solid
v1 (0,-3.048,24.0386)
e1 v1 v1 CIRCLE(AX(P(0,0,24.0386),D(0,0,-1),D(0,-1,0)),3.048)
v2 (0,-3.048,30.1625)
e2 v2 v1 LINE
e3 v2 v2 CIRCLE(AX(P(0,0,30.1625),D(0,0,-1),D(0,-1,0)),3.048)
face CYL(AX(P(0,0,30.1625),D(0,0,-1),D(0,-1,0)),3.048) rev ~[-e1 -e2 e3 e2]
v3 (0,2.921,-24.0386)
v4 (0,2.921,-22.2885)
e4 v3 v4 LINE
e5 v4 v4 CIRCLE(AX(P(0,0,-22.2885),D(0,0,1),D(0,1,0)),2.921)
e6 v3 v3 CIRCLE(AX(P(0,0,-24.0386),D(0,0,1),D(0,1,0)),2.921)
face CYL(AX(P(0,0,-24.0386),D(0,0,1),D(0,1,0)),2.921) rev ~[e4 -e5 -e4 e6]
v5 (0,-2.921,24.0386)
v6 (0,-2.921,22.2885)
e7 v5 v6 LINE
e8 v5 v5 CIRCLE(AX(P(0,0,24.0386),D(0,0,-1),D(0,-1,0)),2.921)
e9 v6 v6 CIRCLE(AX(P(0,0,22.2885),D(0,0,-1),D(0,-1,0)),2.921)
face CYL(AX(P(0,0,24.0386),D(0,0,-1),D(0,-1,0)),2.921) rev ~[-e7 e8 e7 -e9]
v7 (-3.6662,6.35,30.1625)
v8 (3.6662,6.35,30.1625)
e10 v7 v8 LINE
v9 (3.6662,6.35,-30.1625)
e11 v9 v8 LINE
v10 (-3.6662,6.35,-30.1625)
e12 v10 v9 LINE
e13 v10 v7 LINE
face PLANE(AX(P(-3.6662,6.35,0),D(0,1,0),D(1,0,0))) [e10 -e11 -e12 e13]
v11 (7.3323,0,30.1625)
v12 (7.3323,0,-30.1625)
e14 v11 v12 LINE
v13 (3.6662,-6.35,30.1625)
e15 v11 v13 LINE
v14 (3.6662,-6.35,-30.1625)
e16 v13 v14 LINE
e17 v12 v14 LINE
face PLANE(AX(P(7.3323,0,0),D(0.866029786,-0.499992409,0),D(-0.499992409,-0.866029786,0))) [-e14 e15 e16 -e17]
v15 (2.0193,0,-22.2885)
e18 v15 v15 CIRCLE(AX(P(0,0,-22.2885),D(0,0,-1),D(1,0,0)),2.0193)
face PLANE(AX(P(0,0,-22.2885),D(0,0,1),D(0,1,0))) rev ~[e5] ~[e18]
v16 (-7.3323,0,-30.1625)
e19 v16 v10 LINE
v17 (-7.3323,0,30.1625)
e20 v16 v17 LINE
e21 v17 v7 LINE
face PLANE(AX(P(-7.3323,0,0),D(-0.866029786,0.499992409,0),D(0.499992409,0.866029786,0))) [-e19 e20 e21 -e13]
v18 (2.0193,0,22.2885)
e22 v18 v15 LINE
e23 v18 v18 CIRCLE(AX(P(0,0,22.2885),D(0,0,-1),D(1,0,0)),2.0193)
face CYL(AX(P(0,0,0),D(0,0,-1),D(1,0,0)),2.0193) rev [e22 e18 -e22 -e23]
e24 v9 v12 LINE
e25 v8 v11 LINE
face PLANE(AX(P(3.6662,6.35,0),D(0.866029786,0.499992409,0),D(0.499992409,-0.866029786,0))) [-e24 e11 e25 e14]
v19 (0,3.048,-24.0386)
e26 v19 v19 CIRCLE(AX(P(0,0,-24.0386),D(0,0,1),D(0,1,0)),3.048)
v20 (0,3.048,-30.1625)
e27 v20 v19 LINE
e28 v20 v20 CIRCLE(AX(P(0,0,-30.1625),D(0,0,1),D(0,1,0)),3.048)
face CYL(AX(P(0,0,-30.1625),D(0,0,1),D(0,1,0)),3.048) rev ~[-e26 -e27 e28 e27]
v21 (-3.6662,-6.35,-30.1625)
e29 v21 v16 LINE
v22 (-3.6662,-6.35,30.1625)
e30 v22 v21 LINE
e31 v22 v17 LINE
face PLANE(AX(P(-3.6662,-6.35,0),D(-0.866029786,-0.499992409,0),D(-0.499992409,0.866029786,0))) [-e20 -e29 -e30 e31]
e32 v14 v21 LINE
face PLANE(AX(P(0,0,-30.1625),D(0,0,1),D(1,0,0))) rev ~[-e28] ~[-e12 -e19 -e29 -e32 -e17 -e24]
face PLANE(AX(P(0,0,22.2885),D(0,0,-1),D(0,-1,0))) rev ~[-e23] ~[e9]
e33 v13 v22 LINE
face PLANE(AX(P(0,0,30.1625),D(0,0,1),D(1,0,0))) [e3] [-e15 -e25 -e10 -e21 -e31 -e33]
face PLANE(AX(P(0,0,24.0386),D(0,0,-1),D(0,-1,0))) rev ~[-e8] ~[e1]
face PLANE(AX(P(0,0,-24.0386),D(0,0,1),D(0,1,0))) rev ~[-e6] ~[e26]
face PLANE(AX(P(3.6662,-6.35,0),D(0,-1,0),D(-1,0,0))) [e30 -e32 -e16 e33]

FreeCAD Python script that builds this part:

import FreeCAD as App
import Part
import Sketcher
from FreeCAD import Vector
Q = App.Units.Quantity


def add_polygon(sketch, points):
    """Adds a closed chain of lines whose ends are joined by coincident constraints."""
    first, n = sketch.GeometryCount, len(points)
    for a, b in zip(points, points[1:] + points[:1]):
        sketch.addGeometry(Part.LineSegment(App.Vector(*a, 0), App.Vector(*b, 0)), False)
    for i in range(n):
        sketch.addConstraint(Sketcher.Constraint("Coincident", first + i, 2, first + (i + 1) % n, 1))

doc = App.newDocument("Part")
body = doc.addObject("PartDesign::Body", "Body")

# Sketch on XY plane
sketch1 = body.newObject("Sketcher::SketchObject", "Sketch")
sketch1.AttachmentSupport = (doc.getObject("XY_Plane"), [""])
sketch1.MapMode = "FlatFace"
add_polygon(sketch1, [(7.3, 0), (3.7, 6.3), (-3.7, 6.3), (-7.3, 0), (-3.7, -6.3), (3.7, -6.3)])  # lines 0-5
sketch1.addGeometry(Part.Circle(Vector(0, 0, 0), Vector(0, 0, 1), 2), False)  # 6
sketch1.addConstraint([
    Sketcher.Constraint("Horizontal", 1),
    Sketcher.Constraint("Horizontal", 4),
    Sketcher.Constraint("Coincident", 6, 3, -1, 1),
    Sketcher.Constraint("Symmetric", 0, 2, 3, 2, -1, 1),
    Sketcher.Constraint("Symmetric", 2, 2, 5, 2, -1, 1),
    Sketcher.Constraint("PointOnObject", 2, 2, -1),
    Sketcher.Constraint("Parallel", 2, 5),
    Sketcher.Constraint("Vertical", 1, 2, 3, 2),
    Sketcher.Constraint("Diameter", 6, Q("0.159 in")),
    Sketcher.Constraint("DistanceY", 3, 2, 1, 2, Q("0.5 in")),
    Sketcher.Constraint("Angle", 0, Q("119.9995 deg")),
    Sketcher.Constraint("DistanceX", 2, 2, 0, 2, Q("0.433 in")),
])
pad1 = body.newObject("PartDesign::Pad", "Pad")
pad1.Profile = sketch1
pad1.Length = Q("2.375 in")
pad1.Midplane = True

# Sketch on XY plane
sketch2 = body.newObject("Sketcher::SketchObject", "Sketch001")
sketch2.AttachmentSupport = (doc.getObject("XY_Plane"), [""])
sketch2.MapMode = "FlatFace"
sketch2.AttachmentOffset = App.Placement(Vector(0, 0, 1.1875 * 25.4), App.Rotation())
sketch2.addGeometry(Part.Circle(Vector(0, 0, 0), Vector(0, 0, 1), 2.9), False)
sketch2.addConstraint([
    Sketcher.Constraint("Coincident", 0, 3, -1, 1),
    Sketcher.Constraint("Diameter", 0, Q("0.23 in")),
])
doc.recompute()
hole = body.newObject("PartDesign::Hole", "Hole")
hole.Profile = sketch2
hole.ThreadType = "None"
hole.Diameter = Q("0.23 in")
hole.DepthType = "Dimension"
hole.Depth = Q("0.31 in")
hole.DrillPoint = "Flat"
hole.HoleCutType = "Counterbore"
hole.HoleCutDiameter = Q("0.24 in")
hole.HoleCutDepth = Q("0.2410984 in")

# Sketch on XY plane
sketch3 = body.newObject("Sketcher::SketchObject", "Sketch002")
sketch3.AttachmentSupport = (doc.getObject("XY_Plane"), [""])
sketch3.MapMode = "FlatFace"
sketch3.AttachmentOffset = App.Placement(Vector(0, 0, -1.1875 * 25.4), App.Rotation())
sketch3.addGeometry(Part.Circle(Vector(0, 0, 0), Vector(0, 0, 1), 2.9), False)
sketch3.addConstraint([
    Sketcher.Constraint("Coincident", 0, 3, -1, 1),
    Sketcher.Constraint("Diameter", 0, Q("0.23 in")),
])
doc.recompute()
hole2 = body.newObject("PartDesign::Hole", "Hole001")
hole2.Profile = sketch3
hole2.ThreadType = "None"
hole2.Diameter = Q("0.23 in")
hole2.DepthType = "Dimension"
hole2.Depth = Q("0.31 in")
hole2.DrillPoint = "Flat"
hole2.HoleCutType = "Counterbore"
hole2.HoleCutDiameter = Q("0.24 in")
hole2.HoleCutDepth = Q("0.2410984 in")
hole2.Reversed = True

doc.recompute()
